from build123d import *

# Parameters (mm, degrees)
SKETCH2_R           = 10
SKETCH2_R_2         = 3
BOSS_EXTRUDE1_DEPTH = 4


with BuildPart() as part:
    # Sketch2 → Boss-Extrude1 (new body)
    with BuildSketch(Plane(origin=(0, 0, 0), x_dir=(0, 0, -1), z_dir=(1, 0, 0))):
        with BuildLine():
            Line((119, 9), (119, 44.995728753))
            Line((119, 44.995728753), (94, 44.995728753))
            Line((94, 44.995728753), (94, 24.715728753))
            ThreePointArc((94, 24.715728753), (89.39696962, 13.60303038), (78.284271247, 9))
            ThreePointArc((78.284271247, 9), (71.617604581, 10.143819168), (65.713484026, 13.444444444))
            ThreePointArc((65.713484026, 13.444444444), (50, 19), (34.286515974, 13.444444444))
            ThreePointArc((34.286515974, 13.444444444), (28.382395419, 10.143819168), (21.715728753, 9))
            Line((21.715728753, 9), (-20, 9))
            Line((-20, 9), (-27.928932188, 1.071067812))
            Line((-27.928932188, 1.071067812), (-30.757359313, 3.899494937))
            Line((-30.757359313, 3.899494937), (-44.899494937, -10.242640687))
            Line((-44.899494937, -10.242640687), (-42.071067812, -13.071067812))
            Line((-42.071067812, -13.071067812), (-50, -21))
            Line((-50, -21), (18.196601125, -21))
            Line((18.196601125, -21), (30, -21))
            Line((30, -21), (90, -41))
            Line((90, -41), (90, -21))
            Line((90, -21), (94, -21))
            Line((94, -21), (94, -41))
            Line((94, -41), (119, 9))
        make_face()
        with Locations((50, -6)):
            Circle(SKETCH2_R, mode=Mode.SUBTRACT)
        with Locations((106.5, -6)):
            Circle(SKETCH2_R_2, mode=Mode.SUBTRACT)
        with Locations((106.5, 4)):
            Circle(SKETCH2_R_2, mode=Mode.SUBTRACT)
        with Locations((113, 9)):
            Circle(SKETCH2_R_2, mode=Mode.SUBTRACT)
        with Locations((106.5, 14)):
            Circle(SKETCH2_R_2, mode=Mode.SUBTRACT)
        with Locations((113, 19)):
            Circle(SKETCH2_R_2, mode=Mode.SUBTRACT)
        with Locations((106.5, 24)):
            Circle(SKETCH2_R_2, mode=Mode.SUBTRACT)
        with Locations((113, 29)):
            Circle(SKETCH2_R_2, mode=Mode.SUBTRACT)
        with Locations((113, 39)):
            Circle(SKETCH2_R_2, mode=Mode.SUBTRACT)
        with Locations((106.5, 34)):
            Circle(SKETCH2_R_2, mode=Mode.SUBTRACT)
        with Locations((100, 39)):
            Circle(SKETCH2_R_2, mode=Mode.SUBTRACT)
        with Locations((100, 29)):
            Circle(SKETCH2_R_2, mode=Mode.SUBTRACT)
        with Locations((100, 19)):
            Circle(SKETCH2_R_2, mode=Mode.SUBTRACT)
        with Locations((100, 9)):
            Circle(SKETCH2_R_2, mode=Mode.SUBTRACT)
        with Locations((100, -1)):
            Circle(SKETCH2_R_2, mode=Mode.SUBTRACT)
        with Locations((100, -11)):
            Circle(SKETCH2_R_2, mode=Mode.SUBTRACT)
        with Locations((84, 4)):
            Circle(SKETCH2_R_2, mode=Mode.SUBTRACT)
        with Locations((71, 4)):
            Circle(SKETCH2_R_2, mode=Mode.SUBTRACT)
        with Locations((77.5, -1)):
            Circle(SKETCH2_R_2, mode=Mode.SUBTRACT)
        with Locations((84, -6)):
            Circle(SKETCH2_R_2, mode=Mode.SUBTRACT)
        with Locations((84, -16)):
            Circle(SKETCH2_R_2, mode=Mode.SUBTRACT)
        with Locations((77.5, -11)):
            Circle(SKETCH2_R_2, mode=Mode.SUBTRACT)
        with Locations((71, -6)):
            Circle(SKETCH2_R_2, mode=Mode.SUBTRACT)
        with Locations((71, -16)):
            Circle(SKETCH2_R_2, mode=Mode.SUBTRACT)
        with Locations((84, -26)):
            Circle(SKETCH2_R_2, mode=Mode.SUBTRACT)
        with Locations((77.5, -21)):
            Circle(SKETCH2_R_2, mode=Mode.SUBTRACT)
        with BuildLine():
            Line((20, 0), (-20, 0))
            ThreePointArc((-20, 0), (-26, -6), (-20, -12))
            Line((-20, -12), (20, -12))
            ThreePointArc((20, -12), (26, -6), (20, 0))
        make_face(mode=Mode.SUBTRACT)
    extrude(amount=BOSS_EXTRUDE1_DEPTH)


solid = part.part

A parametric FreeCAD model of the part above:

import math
import FreeCAD as App
import Part
import Sketcher
Q = App.Units.Quantity

doc = App.newDocument("Part")
body = doc.addObject("PartDesign::Body", "Body")

sketch1 = doc.addObject("Sketcher::SketchObject", "Sketch")
body.addObject(sketch1)
sketch1.AttachmentSupport = (doc.YZ_Plane, [""])
sketch1.MapMode = "FlatFace"
sketch1.addGeometry([
    Part.LineSegment(App.Vector(9, -119, 0), App.Vector(44.995729, -119, 0)),
    Part.LineSegment(App.Vector(44.995729, -119, 0), App.Vector(44.995729, -94, 0)),
    Part.LineSegment(App.Vector(44.995729, -94, 0), App.Vector(24.715729, -94, 0)),
    Part.ArcOfCircle(Part.Circle(App.Vector(24.715729, -78.284271, 0), App.Vector(0, 0, 1), 15.715729), math.radians(180), math.radians(270)),
    Part.ArcOfCircle(Part.Circle(App.Vector(29, -78.284271, 0), App.Vector(0, 0, 1), 20), math.radians(141.057559), math.radians(180)),
    Part.ArcOfCircle(Part.Circle(App.Vector(-6, -50, 0), App.Vector(0, 0, 1), 25), math.radians(-38.942441), math.radians(38.942441)),
    Part.ArcOfCircle(Part.Circle(App.Vector(29, -21.715729, 0), App.Vector(0, 0, 1), 20), math.radians(180), math.radians(218.942441)),
    Part.LineSegment(App.Vector(9, -21.715729, 0), App.Vector(9, 20, 0)),
    Part.LineSegment(App.Vector(9, 20, 0), App.Vector(1.071068, 27.928932, 0)),
    Part.LineSegment(App.Vector(1.071068, 27.928932, 0), App.Vector(3.899495, 30.757359, 0)),
    Part.LineSegment(App.Vector(3.899495, 30.757359, 0), App.Vector(-10.242641, 44.899495, 0)),
    Part.LineSegment(App.Vector(-10.242641, 44.899495, 0), App.Vector(-13.071068, 42.071068, 0)),
    Part.LineSegment(App.Vector(-13.071068, 42.071068, 0), App.Vector(-21, 50, 0)),
    Part.LineSegment(App.Vector(-21, 50, 0), App.Vector(-21, -30, 0)),
    Part.LineSegment(App.Vector(-21, -30, 0), App.Vector(-41, -90, 0)),
    Part.LineSegment(App.Vector(-41, -90, 0), App.Vector(-21, -90, 0)),
    Part.LineSegment(App.Vector(-21, -90, 0), App.Vector(-21, -94, 0)),
    Part.LineSegment(App.Vector(-21, -94, 0), App.Vector(-41, -94, 0)),
    Part.LineSegment(App.Vector(-41, -94, 0), App.Vector(9, -119, 0)),
    Part.LineSegment(App.Vector(0, 20, 0), App.Vector(0, -20, 0)),
    Part.ArcOfCircle(Part.Circle(App.Vector(-6, -20, 0), App.Vector(0, 0, 1), 6), math.radians(180), math.radians(360)),
    Part.LineSegment(App.Vector(-12, -20, 0), App.Vector(-12, 20, 0)),
    Part.ArcOfCircle(Part.Circle(App.Vector(-6, 20, 0), App.Vector(0, 0, 1), 6), math.radians(0), math.radians(180)),
    Part.Circle(App.Vector(-21, -77.5, 0), App.Vector(0, 0, 1), 3),
    Part.Circle(App.Vector(-16, -71, 0), App.Vector(0, 0, 1), 3),
    Part.Circle(App.Vector(-26, -84, 0), App.Vector(0, 0, 1), 3),
    Part.Circle(App.Vector(-16, -84, 0), App.Vector(0, 0, 1), 3),
    Part.Circle(App.Vector(-6, -50, 0), App.Vector(0, 0, 1), 10),
    Part.Circle(App.Vector(-11, -77.5, 0), App.Vector(0, 0, 1), 3),
    Part.Circle(App.Vector(-6, -71, 0), App.Vector(0, 0, 1), 3),
    Part.Circle(App.Vector(-1, -77.5, 0), App.Vector(0, 0, 1), 3),
    Part.Circle(App.Vector(4, -71, 0), App.Vector(0, 0, 1), 3),
    Part.Circle(App.Vector(-6, -84, 0), App.Vector(0, 0, 1), 3),
    Part.Circle(App.Vector(-11, -100, 0), App.Vector(0, 0, 1), 3),
    Part.Circle(App.Vector(-6, -106.5, 0), App.Vector(0, 0, 1), 3),
    Part.Circle(App.Vector(4, -84, 0), App.Vector(0, 0, 1), 3),
    Part.Circle(App.Vector(-1, -100, 0), App.Vector(0, 0, 1), 3),
    Part.Circle(App.Vector(4, -106.5, 0), App.Vector(0, 0, 1), 3),
    Part.Circle(App.Vector(9, -100, 0), App.Vector(0, 0, 1), 3),
    Part.Circle(App.Vector(9, -113, 0), App.Vector(0, 0, 1), 3),
    Part.Circle(App.Vector(14, -106.5, 0), App.Vector(0, 0, 1), 3),
    Part.Circle(App.Vector(19, -100, 0), App.Vector(0, 0, 1), 3),
    Part.Circle(App.Vector(19, -113, 0), App.Vector(0, 0, 1), 3),
    Part.Circle(App.Vector(24, -106.5, 0), App.Vector(0, 0, 1), 3),
    Part.Circle(App.Vector(29, -100, 0), App.Vector(0, 0, 1), 3),
    Part.Circle(App.Vector(29, -113, 0), App.Vector(0, 0, 1), 3),
    Part.Circle(App.Vector(34, -106.5, 0), App.Vector(0, 0, 1), 3),
    Part.Circle(App.Vector(39, -100, 0), App.Vector(0, 0, 1), 3),
    Part.Circle(App.Vector(39, -113, 0), App.Vector(0, 0, 1), 3),
], False)
sketch1.addConstraint([
    Sketcher.Constraint("Coincident", 0, 2, 1, 1),
    Sketcher.Constraint("Coincident", 1, 2, 2, 1),
    Sketcher.Constraint("Tangent", 2, 2, 3, 2),
    Sketcher.Constraint("Tangent", 3, 1, 4, 2),
    Sketcher.Constraint("Tangent", 4, 1, 5, 1),
    Sketcher.Constraint("Tangent", 5, 2, 6, 2),
    Sketcher.Constraint("Tangent", 6, 1, 7, 1),
    Sketcher.Constraint("Coincident", 7, 2, 8, 1),
    Sketcher.Constraint("Coincident", 8, 2, 9, 1),
    Sketcher.Constraint("Coincident", 9, 2, 10, 1),
    Sketcher.Constraint("Coincident", 10, 2, 11, 1),
    Sketcher.Constraint("Coincident", 11, 2, 12, 1),
    Sketcher.Constraint("Coincident", 12, 2, 13, 1),
    Sketcher.Constraint("Coincident", 13, 2, 14, 1),
    Sketcher.Constraint("Coincident", 14, 2, 15, 1),
    Sketcher.Constraint("Coincident", 15, 2, 16, 1),
    Sketcher.Constraint("Coincident", 16, 2, 17, 1),
    Sketcher.Constraint("Coincident", 17, 2, 18, 1),
    Sketcher.Constraint("Coincident", 18, 2, 0, 1),
    Sketcher.Constraint("Tangent", 19, 2, 20, 2),
    Sketcher.Constraint("Tangent", 20, 1, 21, 1),
    Sketcher.Constraint("Tangent", 21, 2, 22, 2),
    Sketcher.Constraint("Tangent", 22, 1, 19, 1),
    Sketcher.Constraint("Horizontal", 0),
    Sketcher.Constraint("Vertical", 1),
    Sketcher.Constraint("Horizontal", 2),
    Sketcher.Constraint("Vertical", 7),
    Sketcher.Constraint("Vertical", 13),
    Sketcher.Constraint("Horizontal", 15),
    Sketcher.Constraint("Vertical", 16),
    Sketcher.Constraint("Horizontal", 17),
    Sketcher.Constraint("Vertical", 19),
    Sketcher.Constraint("Vertical", 21),
    Sketcher.Constraint("Coincident", 27, 3, 5, 3),
    Sketcher.Constraint("Equal", 4, 6),
    Sketcher.Constraint("Equal", 23, 24),
    Sketcher.Constraint("Equal", 24, 25),
    Sketcher.Constraint("Equal", 25, 26),
    Sketcher.Constraint("Equal", 26, 28),
    Sketcher.Constraint("Equal", 28, 29),
    Sketcher.Constraint("Equal", 29, 30),
    Sketcher.Constraint("Equal", 30, 31),
    Sketcher.Constraint("Equal", 31, 32),
    Sketcher.Constraint("Equal", 32, 33),
    Sketcher.Constraint("Equal", 33, 34),
    Sketcher.Constraint("Equal", 34, 35),
    Sketcher.Constraint("Equal", 35, 36),
    Sketcher.Constraint("Equal", 36, 37),
    Sketcher.Constraint("Equal", 37, 38),
    Sketcher.Constraint("Equal", 38, 39),
    Sketcher.Constraint("Equal", 39, 40),
    Sketcher.Constraint("Equal", 40, 41),
    Sketcher.Constraint("Equal", 41, 42),
    Sketcher.Constraint("Equal", 42, 43),
    Sketcher.Constraint("Equal", 43, 44),
    Sketcher.Constraint("Equal", 44, 45),
    Sketcher.Constraint("Equal", 45, 46),
    Sketcher.Constraint("Equal", 46, 47),
    Sketcher.Constraint("Equal", 47, 48),
    Sketcher.Constraint("Symmetric", 19, 2, 22, 1, -1, 1),
    Sketcher.Constraint("Perpendicular", 8, 9),
    Sketcher.Constraint("Perpendicular", 9, 10),
    Sketcher.Constraint("Perpendicular", 10, 11),
    Sketcher.Constraint("Perpendicular", 11, 12),
    Sketcher.Constraint("Horizontal", 3, 3, 4, 3),
    Sketcher.Constraint("Horizontal", 25, 3, 26, 3),
    Sketcher.Constraint("Horizontal", 23, 3, 28, 3),
    Sketcher.Constraint("Horizontal", 24, 3, 29, 3),
    Sketcher.Constraint("Horizontal", 28, 3, 30, 3),
    Sketcher.Constraint("Horizontal", 29, 3, 31, 3),
    Sketcher.Constraint("Horizontal", 26, 3, 32, 3),
    Sketcher.Constraint("Horizontal", 32, 3, 35, 3),
    Sketcher.Constraint("Horizontal", 33, 3, 36, 3),
    Sketcher.Constraint("Horizontal", 34, 3, 37, 3),
    Sketcher.Constraint("Horizontal", 36, 3, 38, 3),
    Sketcher.Constraint("Horizontal", 37, 3, 40, 3),
    Sketcher.Constraint("Horizontal", 38, 3, 41, 3),
    Sketcher.Constraint("Horizontal", 39, 3, 42, 3),
    Sketcher.Constraint("Horizontal", 40, 3, 43, 3),
    Sketcher.Constraint("Horizontal", 41, 3, 44, 3),
    Sketcher.Constraint("Horizontal", 42, 3, 45, 3),
    Sketcher.Constraint("Horizontal", 43, 3, 46, 3),
    Sketcher.Constraint("Horizontal", 44, 3, 47, 3),
    Sketcher.Constraint("Horizontal", 45, 3, 48, 3),
    Sketcher.Constraint("Horizontal", 22, 3, 7, 2),
    Sketcher.Constraint("Horizontal", 2, 2, 16, 2),
    Sketcher.Constraint("Vertical", 4, 3, 6, 3),
    Sketcher.Constraint("Vertical", 5, 3, 20, 3),
    Sketcher.Constraint("Vertical", 24, 3, 26, 3),
    Sketcher.Constraint("Vertical", 27, 3, 29, 3),
    Sketcher.Constraint("Vertical", 29, 3, 32, 3),
    Sketcher.Constraint("Vertical", 28, 3, 33, 3),
    Sketcher.Constraint("Vertical", 32, 3, 34, 3),
    Sketcher.Constraint("Vertical", 31, 3, 35, 3),
    Sketcher.Constraint("Vertical", 30, 3, 36, 3),
    Sketcher.Constraint("Vertical", 35, 3, 37, 3),
    Sketcher.Constraint("Vertical", 38, 3, 39, 3),
    Sketcher.Constraint("Vertical", 41, 3, 42, 3),
    Sketcher.Constraint("Vertical", 6, 3, 44, 3),
    Sketcher.Constraint("Vertical", 44, 3, 45, 3),
    Sketcher.Constraint("Vertical", 47, 3, 48, 3),
    Sketcher.Constraint("Vertical", 39, 3, 3, 1),
    Sketcher.Constraint("Vertical", 23, 3, 12, 2),
    Sketcher.Constraint("Vertical", 13, 2, 15, 2),
    Sketcher.Constraint("Vertical", 14, 2, 17, 2),
    Sketcher.Constraint("Vertical", 7, 2, 18, 2),
    Sketcher.Constraint("Equal", 9, 11),
    Sketcher.Constraint("Equal", 8, 12),
    Sketcher.Constraint("Diameter", 23, 6.0),
    Sketcher.Constraint("Diameter", 27, 20.0),
    Sketcher.Constraint("Radius", 4, 20.0),
    Sketcher.Constraint("Radius", 5, 25.0),
    Sketcher.Constraint("Radius", 20, 6.0),
    Sketcher.Constraint("DistanceX", 15, 1, 15, 2, 20.0),
    Sketcher.Constraint("DistanceY", 1, 1, 1, 2, 25.0),
    Sketcher.Constraint("DistanceY", 13, 2, 13, 1, 80.0),
    Sketcher.Constraint("DistanceY", 16, 2, 16, 1, 4.0),
    Sketcher.Constraint("DistanceY", 19, 2, 19, 1, 40.0),
    Sketcher.Constraint("Angle", 8, Q("135 deg")),
    Sketcher.Constraint("Distance", 9, 4.0),
    Sketcher.Constraint("Distance", 10, 20.0),
    Sketcher.Constraint("DistanceX", -1, 1, 4, 3, 29.0),
    Sketcher.Constraint("DistanceY", 5, 3, -1, 1, 50.0),
    Sketcher.Constraint("DistanceX", 23, 3, -1, 1, 21.0),
    Sketcher.Constraint("DistanceX", 24, 3, -1, 1, 16.0),
    Sketcher.Constraint("DistanceY", 24, 3, -1, 1, 71.0),
    Sketcher.Constraint("DistanceX", 25, 3, -1, 1, 26.0),
    Sketcher.Constraint("DistanceY", 25, 3, -1, 1, 84.0),
    Sketcher.Constraint("DistanceX", 28, 3, -1, 1, 11.0),
    Sketcher.Constraint("DistanceX", 30, 3, -1, 1, 1.0),
    Sketcher.Constraint("DistanceX", -1, 1, 31, 3, 4.0),
    Sketcher.Constraint("DistanceY", 33, 3, -1, 1, 100.0),
    Sketcher.Constraint("DistanceY", 39, 3, -1, 1, 113.0),
    Sketcher.Constraint("DistanceX", -1, 1, 40, 3, 14.0),
    Sketcher.Constraint("DistanceX", -1, 1, 41, 3, 19.0),
    Sketcher.Constraint("DistanceX", -1, 1, 43, 3, 24.0),
    Sketcher.Constraint("DistanceX", -1, 1, 46, 3, 34.0),
    Sketcher.Constraint("DistanceX", -1, 1, 47, 3, 39.0),
    Sketcher.Constraint("DistanceY", 0, 2, -1, 1, 119.0),
    Sketcher.Constraint("DistanceY", 34, 3, 28, 3, 29.0),
    Sketcher.Constraint("DistanceX", 2, 2, 2, 1, 20.28),
    Sketcher.Constraint("DistanceY", 23, 3, -1, 1, 77.5),
])
pad1 = doc.addObject("PartDesign::Pad", "Pad")
body.addObject(pad1)
pad1.Profile = sketch1
pad1.Length = 4

doc.recompute()
